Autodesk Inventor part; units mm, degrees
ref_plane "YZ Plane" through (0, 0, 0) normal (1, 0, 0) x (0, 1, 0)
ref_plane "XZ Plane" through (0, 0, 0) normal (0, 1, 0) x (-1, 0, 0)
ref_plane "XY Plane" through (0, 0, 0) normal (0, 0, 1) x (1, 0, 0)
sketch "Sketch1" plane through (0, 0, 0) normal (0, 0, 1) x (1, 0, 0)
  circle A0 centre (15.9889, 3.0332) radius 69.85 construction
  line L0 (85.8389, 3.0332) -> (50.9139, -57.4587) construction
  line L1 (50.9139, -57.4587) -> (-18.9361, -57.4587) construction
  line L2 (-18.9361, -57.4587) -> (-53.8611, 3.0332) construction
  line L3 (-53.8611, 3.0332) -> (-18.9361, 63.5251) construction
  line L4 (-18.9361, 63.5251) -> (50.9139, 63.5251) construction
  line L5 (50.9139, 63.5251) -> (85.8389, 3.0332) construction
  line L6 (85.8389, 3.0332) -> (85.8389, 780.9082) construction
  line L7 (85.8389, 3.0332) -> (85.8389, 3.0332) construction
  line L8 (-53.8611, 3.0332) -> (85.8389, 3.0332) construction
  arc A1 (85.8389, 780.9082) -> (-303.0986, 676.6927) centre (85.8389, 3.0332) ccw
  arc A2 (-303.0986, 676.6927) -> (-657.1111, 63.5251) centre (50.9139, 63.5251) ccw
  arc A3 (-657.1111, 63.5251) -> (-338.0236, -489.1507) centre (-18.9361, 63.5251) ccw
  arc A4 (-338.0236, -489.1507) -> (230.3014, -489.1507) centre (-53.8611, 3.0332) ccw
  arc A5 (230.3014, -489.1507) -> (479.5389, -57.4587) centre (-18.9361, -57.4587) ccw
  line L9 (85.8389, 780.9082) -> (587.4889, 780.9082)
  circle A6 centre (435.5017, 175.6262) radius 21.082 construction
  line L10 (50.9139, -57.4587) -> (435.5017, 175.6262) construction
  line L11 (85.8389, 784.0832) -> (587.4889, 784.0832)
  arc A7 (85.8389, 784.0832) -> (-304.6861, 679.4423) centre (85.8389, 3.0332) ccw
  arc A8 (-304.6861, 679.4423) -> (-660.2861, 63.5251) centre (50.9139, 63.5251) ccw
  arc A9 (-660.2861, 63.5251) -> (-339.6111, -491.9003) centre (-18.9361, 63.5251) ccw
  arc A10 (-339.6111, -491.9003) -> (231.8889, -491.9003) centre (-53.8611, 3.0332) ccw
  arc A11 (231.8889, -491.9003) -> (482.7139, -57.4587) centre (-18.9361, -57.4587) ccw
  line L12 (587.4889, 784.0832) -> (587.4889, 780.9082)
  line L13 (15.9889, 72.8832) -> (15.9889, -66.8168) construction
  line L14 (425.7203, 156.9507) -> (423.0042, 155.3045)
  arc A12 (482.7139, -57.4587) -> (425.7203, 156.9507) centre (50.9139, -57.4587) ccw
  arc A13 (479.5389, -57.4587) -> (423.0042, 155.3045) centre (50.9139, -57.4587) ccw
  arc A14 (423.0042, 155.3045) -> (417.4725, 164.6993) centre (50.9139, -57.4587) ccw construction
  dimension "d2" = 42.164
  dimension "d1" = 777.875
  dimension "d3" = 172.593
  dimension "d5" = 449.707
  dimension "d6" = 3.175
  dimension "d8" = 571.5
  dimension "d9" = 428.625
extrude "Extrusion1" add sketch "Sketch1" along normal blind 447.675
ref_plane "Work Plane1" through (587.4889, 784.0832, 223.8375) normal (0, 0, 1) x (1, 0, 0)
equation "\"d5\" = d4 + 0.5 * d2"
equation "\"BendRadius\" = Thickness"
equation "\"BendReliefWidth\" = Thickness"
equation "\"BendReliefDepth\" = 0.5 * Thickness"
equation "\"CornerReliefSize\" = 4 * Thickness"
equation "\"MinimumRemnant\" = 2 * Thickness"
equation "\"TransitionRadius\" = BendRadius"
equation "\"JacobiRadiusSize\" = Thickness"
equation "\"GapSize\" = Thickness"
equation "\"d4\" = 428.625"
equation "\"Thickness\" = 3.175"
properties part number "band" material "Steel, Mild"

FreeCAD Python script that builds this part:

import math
import FreeCAD as App
import Part
import Sketcher
from FreeCAD import Vector
Q = App.Units.Quantity

doc = App.newDocument("Part")
body = doc.addObject("PartDesign::Body", "Body")

sketch1 = body.newObject("Sketcher::SketchObject", "Sketch")
sketch1.AttachmentSupport = (doc.getObject("XY_Plane"), [""])
sketch1.MapMode = "FlatFace"
sketch1.addGeometry([
    Part.ArcOfCircle(Part.Circle(Vector(85.8, 3, 0), Vector(0, 0, 1), 777.9), math.radians(90), math.radians(120)),
    Part.LineSegment(Vector(85.8, 780.9, 0), Vector(587.5, 780.9, 0)),
    Part.LineSegment(Vector(587.5, 780.9, 0), Vector(587.5, 784.1, 0)),
    Part.LineSegment(Vector(587.5, 784.1, 0), Vector(85.8, 784.1, 0)),
    Part.ArcOfCircle(Part.Circle(Vector(85.8, 3, 0), Vector(0, 0, 1), 781.1), math.radians(90), math.radians(120)),
    Part.ArcOfCircle(Part.Circle(Vector(50.9, 63.5, 0), Vector(0, 0, 1), 711.2), math.radians(120), math.radians(180)),
    Part.ArcOfCircle(Part.Circle(Vector(-18.9, 63.5, 0), Vector(0, 0, 1), 641.4), math.radians(180), math.radians(240)),
    Part.ArcOfCircle(Part.Circle(Vector(-53.9, 3, 0), Vector(0, 0, 1), 571.5), math.radians(-120), math.radians(-60)),
    Part.ArcOfCircle(Part.Circle(Vector(-18.9, -57.5, 0), Vector(0, 0, 1), 501.6), math.radians(-60), math.radians(0)),
    Part.ArcOfCircle(Part.Circle(Vector(50.9, -57.5, 0), Vector(0, 0, 1), 431.8), math.radians(0), math.radians(30)),
    Part.LineSegment(Vector(425.7, 157, 0), Vector(423, 155.3, 0)),
    Part.ArcOfCircle(Part.Circle(Vector(50.9, -57.5, 0), Vector(0, 0, 1), 428.6), math.radians(0), math.radians(30)),
    Part.ArcOfCircle(Part.Circle(Vector(-18.9, -57.5, 0), Vector(0, 0, 1), 498.5), math.radians(-60), math.radians(0)),
    Part.ArcOfCircle(Part.Circle(Vector(-53.9, 3, 0), Vector(0, 0, 1), 568.3), math.radians(-120), math.radians(-60)),
    Part.ArcOfCircle(Part.Circle(Vector(-18.9, 63.5, 0), Vector(0, 0, 1), 638.2), math.radians(180), math.radians(240)),
    Part.ArcOfCircle(Part.Circle(Vector(50.9, 63.5, 0), Vector(0, 0, 1), 708), math.radians(120), math.radians(180)),
], False)
sketch1.addConstraint([
    Sketcher.Constraint("Tangent", 0, 1, 1, 1),
    Sketcher.Constraint("Coincident", 1, 2, 2, 1),
    Sketcher.Constraint("Coincident", 2, 2, 3, 1),
    Sketcher.Constraint("Tangent", 3, 2, 4, 1),
    Sketcher.Constraint("Tangent", 4, 2, 5, 1),
    Sketcher.Constraint("Tangent", 5, 2, 6, 1),
    Sketcher.Constraint("Tangent", 6, 2, 7, 1),
    Sketcher.Constraint("Tangent", 7, 2, 8, 1),
    Sketcher.Constraint("Tangent", 8, 2, 9, 1),
    Sketcher.Constraint("Coincident", 9, 2, 10, 1),
    Sketcher.Constraint("Coincident", 10, 2, 11, 2),
    Sketcher.Constraint("Tangent", 11, 1, 12, 2),
    Sketcher.Constraint("Tangent", 12, 1, 13, 2),
    Sketcher.Constraint("Tangent", 13, 1, 14, 2),
    Sketcher.Constraint("Tangent", 14, 1, 15, 2),
    Sketcher.Constraint("Tangent", 15, 1, 0, 2),
    Sketcher.Constraint("Horizontal", 1),
    Sketcher.Constraint("Vertical", 2),
    Sketcher.Constraint("Horizontal", 3),
    Sketcher.Constraint("Coincident", 4, 3, 0, 3),
    Sketcher.Constraint("Coincident", 11, 3, 9, 3),
    Sketcher.Constraint("Coincident", 12, 3, 8, 3),
    Sketcher.Constraint("Coincident", 13, 3, 7, 3),
    Sketcher.Constraint("Coincident", 14, 3, 6, 3),
    Sketcher.Constraint("Coincident", 15, 3, 5, 3),
    Sketcher.Constraint("Horizontal", 5, 3, 6, 3),
    Sketcher.Constraint("Horizontal", 4, 3, 7, 3),
    Sketcher.Constraint("Horizontal", 8, 3, 9, 3),
    Sketcher.Constraint("Horizontal", 6, 2, 7, 2),
    Sketcher.Constraint("Vertical", 6, 3, 8, 3),
    Sketcher.Constraint("Vertical", 5, 3, 9, 3),
    Sketcher.Constraint("Radius", 7, Q("22.5 in")),
    Sketcher.Constraint("Radius", 0, Q("30.625 in")),
    Sketcher.Constraint("Radius", 5, Q("28 in")),
    Sketcher.Constraint("Radius", 11, Q("16.875 in")),
    Sketcher.Constraint("Radius", 6, Q("25.25 in")),
    Sketcher.Constraint("DistanceX", 4, 2, 5, 3, Q("14 in")),
    Sketcher.Constraint("DistanceX", 1, 1, 1, 2, Q("19.75 in")),
    Sketcher.Constraint("Angle", 10, Q("-148.7804 deg")),
    Sketcher.Constraint("DistanceY", -1, 1, 5, 3, Q("2.501 in")),
    Sketcher.Constraint("DistanceX", -1, 1, 10, 2, Q("16.6537 in")),
    Sketcher.Constraint("DistanceX", -1, 1, 0, 3, Q("3.3794882 in")),
])
pad1 = body.newObject("PartDesign::Pad", "Pad")
pad1.Profile = sketch1
pad1.Length = Q("17.625 in")

doc.recompute()
